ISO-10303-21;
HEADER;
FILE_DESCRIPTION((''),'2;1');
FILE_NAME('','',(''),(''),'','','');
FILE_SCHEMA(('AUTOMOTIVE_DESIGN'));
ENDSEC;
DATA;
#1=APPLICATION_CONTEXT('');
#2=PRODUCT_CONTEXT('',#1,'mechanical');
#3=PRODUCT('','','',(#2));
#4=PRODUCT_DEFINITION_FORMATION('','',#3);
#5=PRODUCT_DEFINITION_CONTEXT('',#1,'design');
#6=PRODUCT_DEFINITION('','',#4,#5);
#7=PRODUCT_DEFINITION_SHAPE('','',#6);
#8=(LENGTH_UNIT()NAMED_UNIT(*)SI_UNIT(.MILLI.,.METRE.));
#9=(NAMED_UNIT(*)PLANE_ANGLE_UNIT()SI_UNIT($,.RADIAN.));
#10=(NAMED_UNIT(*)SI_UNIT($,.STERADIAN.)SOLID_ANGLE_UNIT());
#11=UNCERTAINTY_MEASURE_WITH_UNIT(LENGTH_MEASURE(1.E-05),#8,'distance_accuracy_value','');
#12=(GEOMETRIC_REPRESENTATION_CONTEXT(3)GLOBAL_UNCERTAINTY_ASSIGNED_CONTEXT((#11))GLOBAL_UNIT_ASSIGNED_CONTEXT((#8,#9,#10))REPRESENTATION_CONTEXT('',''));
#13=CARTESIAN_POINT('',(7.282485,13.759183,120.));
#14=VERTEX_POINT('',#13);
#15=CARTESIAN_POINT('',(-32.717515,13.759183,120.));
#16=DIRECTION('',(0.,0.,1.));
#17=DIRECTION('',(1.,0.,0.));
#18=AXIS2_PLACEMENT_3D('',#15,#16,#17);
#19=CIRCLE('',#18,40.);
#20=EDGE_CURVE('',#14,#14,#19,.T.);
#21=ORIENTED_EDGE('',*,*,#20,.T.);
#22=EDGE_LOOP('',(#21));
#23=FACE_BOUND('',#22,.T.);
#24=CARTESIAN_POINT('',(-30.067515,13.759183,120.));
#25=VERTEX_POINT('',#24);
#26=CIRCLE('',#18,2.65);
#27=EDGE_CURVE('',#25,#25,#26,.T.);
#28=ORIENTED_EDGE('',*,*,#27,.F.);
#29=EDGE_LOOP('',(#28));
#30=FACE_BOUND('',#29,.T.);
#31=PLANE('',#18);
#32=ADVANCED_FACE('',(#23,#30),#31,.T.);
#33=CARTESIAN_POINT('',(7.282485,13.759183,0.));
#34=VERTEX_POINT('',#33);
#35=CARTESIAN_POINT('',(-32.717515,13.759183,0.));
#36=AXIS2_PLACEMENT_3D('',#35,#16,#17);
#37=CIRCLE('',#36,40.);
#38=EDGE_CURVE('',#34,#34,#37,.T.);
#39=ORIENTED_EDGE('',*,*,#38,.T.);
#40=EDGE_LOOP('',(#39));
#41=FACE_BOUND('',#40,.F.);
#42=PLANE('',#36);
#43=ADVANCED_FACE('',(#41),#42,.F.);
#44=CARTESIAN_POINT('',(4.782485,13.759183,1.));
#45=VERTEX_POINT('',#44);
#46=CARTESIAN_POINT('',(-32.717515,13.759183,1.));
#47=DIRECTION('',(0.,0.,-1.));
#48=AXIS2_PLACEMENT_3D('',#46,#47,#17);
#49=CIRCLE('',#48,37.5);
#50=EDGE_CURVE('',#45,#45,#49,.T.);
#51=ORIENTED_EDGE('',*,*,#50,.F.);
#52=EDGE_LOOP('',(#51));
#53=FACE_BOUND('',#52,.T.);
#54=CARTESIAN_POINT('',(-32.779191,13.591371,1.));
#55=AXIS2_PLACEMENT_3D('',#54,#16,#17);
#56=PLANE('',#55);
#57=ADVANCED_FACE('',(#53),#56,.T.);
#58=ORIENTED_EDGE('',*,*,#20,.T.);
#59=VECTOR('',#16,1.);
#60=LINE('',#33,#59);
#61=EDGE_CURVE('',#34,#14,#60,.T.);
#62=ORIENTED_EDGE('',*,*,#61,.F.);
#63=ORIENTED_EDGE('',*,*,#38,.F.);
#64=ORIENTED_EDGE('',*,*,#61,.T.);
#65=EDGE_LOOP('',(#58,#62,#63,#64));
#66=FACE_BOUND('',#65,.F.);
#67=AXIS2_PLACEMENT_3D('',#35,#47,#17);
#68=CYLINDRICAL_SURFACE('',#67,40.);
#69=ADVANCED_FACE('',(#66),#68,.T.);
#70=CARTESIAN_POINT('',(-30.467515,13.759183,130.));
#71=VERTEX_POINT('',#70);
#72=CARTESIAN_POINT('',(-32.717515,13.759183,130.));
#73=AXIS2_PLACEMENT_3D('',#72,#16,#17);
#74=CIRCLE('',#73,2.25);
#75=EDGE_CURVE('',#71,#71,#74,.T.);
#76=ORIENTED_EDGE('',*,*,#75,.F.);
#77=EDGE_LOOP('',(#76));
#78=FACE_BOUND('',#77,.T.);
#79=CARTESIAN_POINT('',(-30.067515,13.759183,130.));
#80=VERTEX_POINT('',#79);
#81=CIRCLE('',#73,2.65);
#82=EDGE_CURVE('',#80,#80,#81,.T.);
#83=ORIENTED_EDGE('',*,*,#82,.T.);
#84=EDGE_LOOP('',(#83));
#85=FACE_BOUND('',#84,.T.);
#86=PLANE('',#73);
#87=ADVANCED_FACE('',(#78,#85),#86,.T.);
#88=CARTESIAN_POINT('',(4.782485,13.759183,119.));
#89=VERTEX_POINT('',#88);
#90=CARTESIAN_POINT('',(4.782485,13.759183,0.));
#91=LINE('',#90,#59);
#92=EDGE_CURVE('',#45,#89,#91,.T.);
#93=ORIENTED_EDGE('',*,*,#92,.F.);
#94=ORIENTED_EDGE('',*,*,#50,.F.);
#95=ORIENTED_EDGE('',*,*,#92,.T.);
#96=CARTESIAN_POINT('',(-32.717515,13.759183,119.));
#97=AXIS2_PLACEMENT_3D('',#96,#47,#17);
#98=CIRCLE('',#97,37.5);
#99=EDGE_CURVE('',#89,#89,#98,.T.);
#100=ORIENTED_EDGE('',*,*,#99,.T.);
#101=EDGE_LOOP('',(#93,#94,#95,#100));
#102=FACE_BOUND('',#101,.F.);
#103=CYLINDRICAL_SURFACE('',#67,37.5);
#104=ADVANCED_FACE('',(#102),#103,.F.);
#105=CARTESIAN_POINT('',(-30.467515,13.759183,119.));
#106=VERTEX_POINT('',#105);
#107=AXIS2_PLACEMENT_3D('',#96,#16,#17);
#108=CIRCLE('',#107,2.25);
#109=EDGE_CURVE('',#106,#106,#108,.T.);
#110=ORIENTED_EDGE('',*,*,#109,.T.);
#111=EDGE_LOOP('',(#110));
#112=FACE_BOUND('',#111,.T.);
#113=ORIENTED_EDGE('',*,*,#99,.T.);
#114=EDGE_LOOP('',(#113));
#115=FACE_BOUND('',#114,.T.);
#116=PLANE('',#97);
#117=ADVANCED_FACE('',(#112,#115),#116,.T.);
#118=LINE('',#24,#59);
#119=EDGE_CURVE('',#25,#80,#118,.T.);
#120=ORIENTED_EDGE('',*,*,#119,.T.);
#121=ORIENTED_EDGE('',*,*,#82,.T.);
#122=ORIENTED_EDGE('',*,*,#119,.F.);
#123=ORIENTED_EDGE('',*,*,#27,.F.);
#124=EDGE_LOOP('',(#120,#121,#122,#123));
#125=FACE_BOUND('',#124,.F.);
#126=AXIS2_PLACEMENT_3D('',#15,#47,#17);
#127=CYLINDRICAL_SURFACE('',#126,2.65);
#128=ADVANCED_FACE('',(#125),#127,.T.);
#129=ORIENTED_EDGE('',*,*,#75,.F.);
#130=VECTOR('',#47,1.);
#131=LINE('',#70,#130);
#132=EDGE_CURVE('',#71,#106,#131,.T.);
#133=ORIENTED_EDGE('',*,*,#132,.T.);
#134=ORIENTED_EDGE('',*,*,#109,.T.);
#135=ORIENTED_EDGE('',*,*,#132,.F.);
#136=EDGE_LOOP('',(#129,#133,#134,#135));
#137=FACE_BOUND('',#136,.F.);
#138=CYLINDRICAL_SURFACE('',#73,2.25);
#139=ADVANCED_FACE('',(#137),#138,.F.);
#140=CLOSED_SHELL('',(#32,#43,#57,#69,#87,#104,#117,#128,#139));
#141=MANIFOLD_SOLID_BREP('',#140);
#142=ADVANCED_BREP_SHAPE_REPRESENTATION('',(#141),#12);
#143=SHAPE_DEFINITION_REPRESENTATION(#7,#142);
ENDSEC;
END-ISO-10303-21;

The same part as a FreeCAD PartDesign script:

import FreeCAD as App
import Part
import Sketcher

V = App.Vector

doc = App.newDocument("Part")
body = doc.addObject("PartDesign::Body", "Body")

# Sketch on XY plane
sketch1 = body.newObject("Sketcher::SketchObject", "Sketch")
sketch1.AttachmentSupport = (doc.getObject("XY_Plane"), [""])
sketch1.MapMode = "FlatFace"
sketch1.addGeometry(Part.Circle(V(-33, 14, 0), V(0, 0, 1), 40), False)
sketch1.addConstraint([
    Sketcher.Constraint("Diameter", 0, 80.0),
    Sketcher.Constraint("DistanceX", 0, 3, -1, 1, 32.717515),
    Sketcher.Constraint("DistanceY", -1, 1, 0, 3, 13.759183),
])
pad1 = body.newObject("PartDesign::Pad", "Pad")
pad1.Profile = sketch1
pad1.Length = 120

# Sketch on XY plane
sketch2 = body.newObject("Sketcher::SketchObject", "Sketch001")
sketch2.AttachmentSupport = (doc.getObject("XY_Plane"), [""])
sketch2.MapMode = "FlatFace"
sketch2.AttachmentOffset = App.Placement(V(0, 0, 120), App.Rotation())
sketch2.addGeometry(Part.Circle(V(-32.7, 13.8, 0), V(0, 0, 1), 2.6), False)
sketch2.addConstraint([
    Sketcher.Constraint("Diameter", 0, 5.3),
    Sketcher.Constraint("DistanceX", 0, 3, -1, 1, 32.717515),
    Sketcher.Constraint("DistanceY", -1, 1, 0, 3, 13.759183),
])
pad2 = body.newObject("PartDesign::Pad", "Pad001")
pad2.Profile = sketch2
pad2.Length = 10

# Sketch on XY plane
sketch3 = body.newObject("Sketcher::SketchObject", "Sketch002")
sketch3.AttachmentSupport = (doc.getObject("XY_Plane"), [""])
sketch3.MapMode = "FlatFace"
sketch3.AttachmentOffset = App.Placement(V(0, 0, 130), App.Rotation())
sketch3.addGeometry(Part.Circle(V(-32.7, 13.8, 0), V(0, 0, 1), 2.2), False)
sketch3.addConstraint([
    Sketcher.Constraint("Diameter", 0, 4.5),
    Sketcher.Constraint("DistanceX", 0, 3, -1, 1, 32.717515),
    Sketcher.Constraint("DistanceY", -1, 1, 0, 3, 13.759183),
])
pocket1 = body.newObject("PartDesign::Pocket", "Pocket")
pocket1.Profile = sketch3
pocket1.Length = 25

# Sketch on XY plane
sketch4 = body.newObject("Sketcher::SketchObject", "Sketch003")
sketch4.AttachmentSupport = (doc.getObject("XY_Plane"), [""])
sketch4.MapMode = "FlatFace"
sketch4.addGeometry(Part.Circle(V(-33, 14, 0), V(0, 0, 1), 38), False)
sketch4.addConstraint([
    Sketcher.Constraint("Diameter", 0, 75.0),
    Sketcher.Constraint("DistanceX", 0, 3, -1, 1, 32.717515),
    Sketcher.Constraint("DistanceY", -1, 1, 0, 3, 13.759183),
])
pocket2 = body.newObject("PartDesign::Pocket", "Pocket001")
pocket2.Profile = sketch4
pocket2.Length = 119
pocket2.Reversed = True

# Sketch on XY plane
sketch5 = body.newObject("Sketcher::SketchObject", "Sketch004")
sketch5.AttachmentSupport = (doc.getObject("XY_Plane"), [""])
sketch5.MapMode = "FlatFace"
sketch5.addGeometry(Part.Circle(V(-33, 14, 0), V(0, 0, 1), 40), False)
sketch5.addConstraint([
    Sketcher.Constraint("Diameter", 0, 79.389636),
    Sketcher.Constraint("DistanceX", 0, 3, -1, 1, 32.779191),
    Sketcher.Constraint("DistanceY", -1, 1, 0, 3, 13.591371),
])
pad3 = body.newObject("PartDesign::Pad", "Pad002")
pad3.Profile = sketch5
pad3.Length = 1

doc.recompute()
